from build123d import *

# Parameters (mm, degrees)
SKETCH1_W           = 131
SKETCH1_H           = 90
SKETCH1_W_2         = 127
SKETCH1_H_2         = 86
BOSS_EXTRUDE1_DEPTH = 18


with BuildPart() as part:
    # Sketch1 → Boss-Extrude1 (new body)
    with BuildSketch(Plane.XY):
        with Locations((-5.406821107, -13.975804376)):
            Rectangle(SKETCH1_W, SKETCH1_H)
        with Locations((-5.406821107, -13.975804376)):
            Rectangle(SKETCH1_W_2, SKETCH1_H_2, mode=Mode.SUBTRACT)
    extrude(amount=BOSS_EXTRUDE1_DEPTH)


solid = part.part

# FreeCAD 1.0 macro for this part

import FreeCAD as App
import Part
import Sketcher


def add_polygon(sketch, points):
    """Adds a closed chain of lines whose ends are joined by coincident constraints."""
    first, n = sketch.GeometryCount, len(points)
    for a, b in zip(points, points[1:] + points[:1]):
        sketch.addGeometry(Part.LineSegment(App.Vector(*a, 0), App.Vector(*b, 0)), False)
    for i in range(n):
        sketch.addConstraint(Sketcher.Constraint("Coincident", first + i, 2, first + (i + 1) % n, 1))

doc = App.newDocument("Part")
body = doc.addObject("PartDesign::Body", "Body")

# Sketch on XY plane
sketch1 = body.newObject("Sketcher::SketchObject", "Sketch")
sketch1.AttachmentSupport = (doc.getObject("XY_Plane"), [""])
sketch1.MapMode = "FlatFace"
add_polygon(sketch1, [(-70.906821, 31.024196), (-70.906821, -58.975804), (60.093179, -58.975804), (60.093179, 31.024196)])  # lines 0-3
add_polygon(sketch1, [(58.093179, -56.975804), (-68.906821, -56.975804), (-68.906821, 29.024196), (58.093179, 29.024196)])  # lines 4-7
sketch1.addConstraint(Sketcher.Constraint("Vertical", 0))
sketch1.addConstraint(Sketcher.Constraint("Horizontal", 1))
sketch1.addConstraint(Sketcher.Constraint("Vertical", 2))
sketch1.addConstraint(Sketcher.Constraint("Horizontal", 3))
sketch1.addConstraint(Sketcher.Constraint("Horizontal", 4))
sketch1.addConstraint(Sketcher.Constraint("Vertical", 5))
sketch1.addConstraint(Sketcher.Constraint("Horizontal", 6))
sketch1.addConstraint(Sketcher.Constraint("Vertical", 7))
sketch1.addConstraint(Sketcher.Constraint("DistanceX", 1, 1, 1, 2, 131.0))
sketch1.addConstraint(Sketcher.Constraint("DistanceX", 4, 2, 4, 1, 127.0))
sketch1.addConstraint(Sketcher.Constraint("DistanceY", 0, 2, 0, 1, 90.0))
sketch1.addConstraint(Sketcher.Constraint("DistanceY", 5, 1, 5, 2, 86.0))
sketch1.addConstraint(Sketcher.Constraint("DistanceX", 0, 2, 4, 2, 2.0))
sketch1.addConstraint(Sketcher.Constraint("DistanceY", 0, 2, 4, 2, 2.0))
sketch1.addConstraint(Sketcher.Constraint("DistanceX", 0, 2, -1, 1, 70.906821))
sketch1.addConstraint(Sketcher.Constraint("DistanceY", 0, 2, -1, 1, 58.975804))
pad1 = body.newObject("PartDesign::Pad", "Pad")
pad1.Profile = sketch1
pad1.Length = 18

doc.recompute()
